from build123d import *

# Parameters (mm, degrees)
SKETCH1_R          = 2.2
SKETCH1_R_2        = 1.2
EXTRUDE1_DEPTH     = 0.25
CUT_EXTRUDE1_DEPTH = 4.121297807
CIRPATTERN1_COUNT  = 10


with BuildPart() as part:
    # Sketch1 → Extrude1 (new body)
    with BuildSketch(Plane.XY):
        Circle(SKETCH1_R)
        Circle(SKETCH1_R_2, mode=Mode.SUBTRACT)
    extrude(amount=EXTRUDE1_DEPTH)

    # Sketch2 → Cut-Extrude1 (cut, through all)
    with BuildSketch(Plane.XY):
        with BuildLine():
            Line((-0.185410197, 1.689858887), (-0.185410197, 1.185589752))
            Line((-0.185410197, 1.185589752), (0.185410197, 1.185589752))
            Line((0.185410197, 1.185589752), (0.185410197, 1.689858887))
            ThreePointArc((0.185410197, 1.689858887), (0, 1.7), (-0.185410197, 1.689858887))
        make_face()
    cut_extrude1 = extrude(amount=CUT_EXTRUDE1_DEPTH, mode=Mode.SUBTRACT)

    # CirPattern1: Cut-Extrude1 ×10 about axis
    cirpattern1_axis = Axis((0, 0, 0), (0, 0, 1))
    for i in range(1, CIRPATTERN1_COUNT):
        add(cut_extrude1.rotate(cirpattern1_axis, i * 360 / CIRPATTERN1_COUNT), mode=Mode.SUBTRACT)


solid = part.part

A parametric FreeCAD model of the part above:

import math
import FreeCAD as App
import Part
import Sketcher
from FreeCAD import Vector

doc = App.newDocument("Part")
body = doc.addObject("PartDesign::Body", "Body")

# Sketch on XY plane
sketch1 = doc.addObject("Sketcher::SketchObject", "Sketch")
body.addObject(sketch1)
sketch1.AttachmentSupport = (doc.XY_Plane, [""])
sketch1.MapMode = "FlatFace"
sketch1.addGeometry([
    Part.Circle(Vector(0, 0, 0), Vector(0, 0, 1), 2.2),
    Part.Circle(Vector(0, 0, 0), Vector(0, 0, 1), 1.2),
], False)
sketch1.addConstraint([
    Sketcher.Constraint("Coincident", 0, 3, -1, 1),
    Sketcher.Constraint("Coincident", 1, 3, -1, 1),
    Sketcher.Constraint("Diameter", 0, 4.4),
    Sketcher.Constraint("Diameter", 1, 2.4),
])
pad1 = doc.addObject("PartDesign::Pad", "Pad")
body.addObject(pad1)
pad1.Profile = sketch1
pad1.Length = 0.25

# Sketch on XY plane
sketch2 = doc.addObject("Sketcher::SketchObject", "Sketch001")
body.addObject(sketch2)
sketch2.AttachmentSupport = (doc.XY_Plane, [""])
sketch2.MapMode = "FlatFace"
sketch2.addGeometry([
    Part.LineSegment(Vector(-0.19, 1.69, 0), Vector(-0.19, 1.19, 0)),
    Part.LineSegment(Vector(-0.19, 1.19, 0), Vector(0.19, 1.19, 0)),
    Part.LineSegment(Vector(0.19, 1.19, 0), Vector(0.19, 1.69, 0)),
    Part.ArcOfCircle(Part.Circle(Vector(0, 0, 0), Vector(0, 0, 1), 1.7), math.radians(83.74), math.radians(96.26)),
], False)
sketch2.addConstraint([
    Sketcher.Constraint("Coincident", 0, 2, 1, 1),
    Sketcher.Constraint("Coincident", 1, 2, 2, 1),
    Sketcher.Constraint("Coincident", 2, 2, 3, 1),
    Sketcher.Constraint("Coincident", 3, 2, 0, 1),
    Sketcher.Constraint("Vertical", 0),
    Sketcher.Constraint("Horizontal", 1),
    Sketcher.Constraint("Vertical", 2),
    Sketcher.Constraint("Coincident", 3, 3, -1, 1),
    Sketcher.Constraint("Horizontal", 2, 2, 3, 2),
    Sketcher.Constraint("Radius", 3, 1.7),
    Sketcher.Constraint("DistanceX", 1, 1, 1, 2, 0.37082),
    Sketcher.Constraint("DistanceY", 0, 2, 0, 1, 0.504269),
])
pocket1 = doc.addObject("PartDesign::Pocket", "Pocket")
body.addObject(pocket1)
pocket1.Profile = sketch2
pocket1.Type = "ThroughAll"
pocket1.Reversed = True
doc.recompute()

polarpattern = doc.addObject("PartDesign::PolarPattern", "PolarPattern")
body.addObject(polarpattern)
polarpattern.Originals = [pocket1]
polarpattern.Axis = (doc.Z_Axis, [""])
polarpattern.Angle = 360
polarpattern.Occurrences = 10
body.Tip = polarpattern

doc.recompute()
